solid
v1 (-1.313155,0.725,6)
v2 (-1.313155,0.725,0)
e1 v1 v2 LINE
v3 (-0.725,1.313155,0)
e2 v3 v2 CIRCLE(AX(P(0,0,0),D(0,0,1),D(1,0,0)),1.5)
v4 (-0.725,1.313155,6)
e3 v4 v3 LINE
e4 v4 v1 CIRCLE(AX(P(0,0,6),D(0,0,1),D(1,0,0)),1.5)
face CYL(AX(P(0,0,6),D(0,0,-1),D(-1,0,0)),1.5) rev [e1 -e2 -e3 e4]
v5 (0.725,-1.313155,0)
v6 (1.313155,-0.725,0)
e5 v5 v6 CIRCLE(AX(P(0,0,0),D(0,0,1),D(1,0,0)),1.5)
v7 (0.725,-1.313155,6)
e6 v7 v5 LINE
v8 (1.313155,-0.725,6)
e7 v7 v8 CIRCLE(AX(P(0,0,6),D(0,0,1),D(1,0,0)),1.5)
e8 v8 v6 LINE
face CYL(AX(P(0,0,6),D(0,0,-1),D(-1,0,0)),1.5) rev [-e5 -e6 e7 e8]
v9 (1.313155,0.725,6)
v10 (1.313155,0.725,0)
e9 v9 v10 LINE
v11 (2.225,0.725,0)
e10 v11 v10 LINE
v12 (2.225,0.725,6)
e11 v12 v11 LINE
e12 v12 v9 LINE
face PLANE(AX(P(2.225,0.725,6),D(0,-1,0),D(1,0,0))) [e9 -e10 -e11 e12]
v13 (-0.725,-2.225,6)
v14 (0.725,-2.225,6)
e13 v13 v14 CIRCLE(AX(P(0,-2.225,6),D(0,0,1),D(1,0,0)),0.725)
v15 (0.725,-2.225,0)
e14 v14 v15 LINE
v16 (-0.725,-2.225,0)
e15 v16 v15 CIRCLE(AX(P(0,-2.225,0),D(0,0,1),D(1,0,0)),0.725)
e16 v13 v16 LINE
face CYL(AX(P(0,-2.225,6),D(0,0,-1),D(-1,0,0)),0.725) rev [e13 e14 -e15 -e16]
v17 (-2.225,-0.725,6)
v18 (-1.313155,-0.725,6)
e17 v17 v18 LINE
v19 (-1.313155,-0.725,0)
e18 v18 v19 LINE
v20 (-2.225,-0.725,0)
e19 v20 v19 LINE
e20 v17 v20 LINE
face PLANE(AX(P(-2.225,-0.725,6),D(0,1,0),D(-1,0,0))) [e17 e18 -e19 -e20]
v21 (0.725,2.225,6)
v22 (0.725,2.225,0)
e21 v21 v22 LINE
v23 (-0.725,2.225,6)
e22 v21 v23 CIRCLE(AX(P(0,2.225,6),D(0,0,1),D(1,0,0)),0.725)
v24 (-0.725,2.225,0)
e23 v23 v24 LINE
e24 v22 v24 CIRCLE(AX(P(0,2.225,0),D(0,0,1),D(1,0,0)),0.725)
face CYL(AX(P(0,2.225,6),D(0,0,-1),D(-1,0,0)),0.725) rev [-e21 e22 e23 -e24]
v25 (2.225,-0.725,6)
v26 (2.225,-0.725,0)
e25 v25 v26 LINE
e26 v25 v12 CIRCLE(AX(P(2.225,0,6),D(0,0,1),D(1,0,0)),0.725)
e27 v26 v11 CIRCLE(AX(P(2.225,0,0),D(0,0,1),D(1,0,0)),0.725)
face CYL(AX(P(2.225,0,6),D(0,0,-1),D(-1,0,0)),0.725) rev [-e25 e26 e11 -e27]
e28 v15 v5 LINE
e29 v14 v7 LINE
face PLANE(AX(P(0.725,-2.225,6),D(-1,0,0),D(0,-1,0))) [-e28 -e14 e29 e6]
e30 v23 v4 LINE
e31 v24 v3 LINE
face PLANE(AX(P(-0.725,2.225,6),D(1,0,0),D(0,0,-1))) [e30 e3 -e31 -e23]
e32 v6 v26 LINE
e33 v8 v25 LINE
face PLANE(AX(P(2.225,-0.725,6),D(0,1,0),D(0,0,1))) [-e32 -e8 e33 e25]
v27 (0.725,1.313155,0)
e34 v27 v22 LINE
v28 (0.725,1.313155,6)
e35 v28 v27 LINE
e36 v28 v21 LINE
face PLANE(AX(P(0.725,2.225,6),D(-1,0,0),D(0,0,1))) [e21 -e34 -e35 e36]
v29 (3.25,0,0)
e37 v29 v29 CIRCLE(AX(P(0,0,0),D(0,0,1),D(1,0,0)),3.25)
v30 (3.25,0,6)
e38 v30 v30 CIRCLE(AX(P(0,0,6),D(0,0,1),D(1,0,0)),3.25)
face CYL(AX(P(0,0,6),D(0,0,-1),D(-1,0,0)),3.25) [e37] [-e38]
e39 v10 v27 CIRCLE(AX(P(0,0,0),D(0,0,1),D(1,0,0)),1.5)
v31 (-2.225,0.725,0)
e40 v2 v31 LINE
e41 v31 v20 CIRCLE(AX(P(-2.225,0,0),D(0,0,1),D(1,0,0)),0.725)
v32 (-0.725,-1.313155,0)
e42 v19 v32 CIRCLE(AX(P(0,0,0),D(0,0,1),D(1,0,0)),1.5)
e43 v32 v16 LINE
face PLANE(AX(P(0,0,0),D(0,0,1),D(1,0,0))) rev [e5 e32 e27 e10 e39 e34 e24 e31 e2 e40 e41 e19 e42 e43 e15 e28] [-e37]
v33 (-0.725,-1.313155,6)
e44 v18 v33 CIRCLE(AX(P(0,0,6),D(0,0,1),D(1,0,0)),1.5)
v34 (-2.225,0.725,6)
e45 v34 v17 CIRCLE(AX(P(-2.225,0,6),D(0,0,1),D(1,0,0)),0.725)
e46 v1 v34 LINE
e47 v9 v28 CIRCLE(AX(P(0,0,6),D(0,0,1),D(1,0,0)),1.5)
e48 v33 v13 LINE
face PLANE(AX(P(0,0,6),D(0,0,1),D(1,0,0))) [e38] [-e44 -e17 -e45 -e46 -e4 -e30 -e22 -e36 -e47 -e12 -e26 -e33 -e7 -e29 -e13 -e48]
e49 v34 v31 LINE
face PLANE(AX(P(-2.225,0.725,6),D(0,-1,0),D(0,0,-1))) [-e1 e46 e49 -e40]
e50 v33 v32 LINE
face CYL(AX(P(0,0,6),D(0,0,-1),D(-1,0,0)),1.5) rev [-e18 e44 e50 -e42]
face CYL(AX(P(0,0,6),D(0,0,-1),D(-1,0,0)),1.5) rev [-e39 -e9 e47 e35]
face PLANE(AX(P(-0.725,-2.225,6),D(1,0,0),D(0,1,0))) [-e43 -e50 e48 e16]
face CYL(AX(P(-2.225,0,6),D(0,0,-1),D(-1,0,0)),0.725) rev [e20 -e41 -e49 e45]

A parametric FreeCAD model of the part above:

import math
import FreeCAD as App
import Part
import Sketcher

V = App.Vector

doc = App.newDocument("Part")
body = doc.addObject("PartDesign::Body", "Body")

# Sketch on XY plane
sketch1 = doc.addObject("Sketcher::SketchObject", "Sketch")
body.addObject(sketch1)
sketch1.AttachmentSupport = (doc.XY_Plane, [""])
sketch1.MapMode = "FlatFace"
sketch1.addGeometry([
    Part.Circle(V(0, 0, 0), V(0, 0, 1), 3.2),  # 0
    Part.ArcOfCircle(Part.Circle(V(2.2, 0, 0), V(0, 0, 1), 0.7), math.radians(-90), math.radians(90)),  # 1
    Part.LineSegment(V(2.2, -0.7, 0), V(1.3, -0.7, 0)),  # 2
    Part.ArcOfCircle(Part.Circle(V(0, 0, 0), V(0, 0, 1), 1.5), math.radians(-61), math.radians(-29)),  # 3
    Part.LineSegment(V(0.7, -1.3, 0), V(0.7, -2.2, 0)),  # 4
    Part.ArcOfCircle(Part.Circle(V(0, -2.2, 0), V(0, 0, 1), 0.7), math.radians(180), math.radians(360)),  # 5
    Part.LineSegment(V(-0.7, -2.2, 0), V(-0.7, -1.3, 0)),  # 6
    Part.ArcOfCircle(Part.Circle(V(0, 0, 0), V(0, 0, 1), 1.5), math.radians(-151), math.radians(-119)),  # 7
    Part.LineSegment(V(-1.3, -0.7, 0), V(-2.2, -0.7, 0)),  # 8
    Part.ArcOfCircle(Part.Circle(V(-2.2, 0, 0), V(0, 0, 1), 0.7), math.radians(90), math.radians(270)),  # 9
    Part.LineSegment(V(-2.2, 0.7, 0), V(-1.3, 0.7, 0)),  # 10
    Part.ArcOfCircle(Part.Circle(V(0, 0, 0), V(0, 0, 1), 1.5), math.radians(119), math.radians(151)),  # 11
    Part.LineSegment(V(-0.7, 1.3, 0), V(-0.7, 2.2, 0)),  # 12
    Part.ArcOfCircle(Part.Circle(V(0, 2.2, 0), V(0, 0, 1), 0.7), math.radians(0), math.radians(180)),  # 13
    Part.LineSegment(V(0.7, 2.2, 0), V(0.7, 1.3, 0)),  # 14
    Part.ArcOfCircle(Part.Circle(V(0, 0, 0), V(0, 0, 1), 1.5), math.radians(29), math.radians(61)),  # 15
    Part.LineSegment(V(1.3, 0.7, 0), V(2.2, 0.7, 0)),  # 16
], False)
sketch1.addConstraint([
    Sketcher.Constraint("Tangent", 1, 1, 2, 1),
    Sketcher.Constraint("Coincident", 2, 2, 3, 2),
    Sketcher.Constraint("Coincident", 3, 1, 4, 1),
    Sketcher.Constraint("Tangent", 4, 2, 5, 2),
    Sketcher.Constraint("Tangent", 5, 1, 6, 1),
    Sketcher.Constraint("Coincident", 6, 2, 7, 2),
    Sketcher.Constraint("Coincident", 7, 1, 8, 1),
    Sketcher.Constraint("Tangent", 8, 2, 9, 2),
    Sketcher.Constraint("Tangent", 9, 1, 10, 1),
    Sketcher.Constraint("Coincident", 10, 2, 11, 2),
    Sketcher.Constraint("Coincident", 11, 1, 12, 1),
    Sketcher.Constraint("Tangent", 12, 2, 13, 2),
    Sketcher.Constraint("Tangent", 13, 1, 14, 1),
    Sketcher.Constraint("Coincident", 14, 2, 15, 2),
    Sketcher.Constraint("Coincident", 15, 1, 16, 1),
    Sketcher.Constraint("Tangent", 16, 2, 1, 2),
    Sketcher.Constraint("Horizontal", 2),
    Sketcher.Constraint("Vertical", 4),
    Sketcher.Constraint("Vertical", 6),
    Sketcher.Constraint("Horizontal", 8),
    Sketcher.Constraint("Horizontal", 10),
    Sketcher.Constraint("Vertical", 12),
    Sketcher.Constraint("Vertical", 14),
    Sketcher.Constraint("Horizontal", 16),
    Sketcher.Constraint("Coincident", 0, 3, -1, 1),
    Sketcher.Constraint("Coincident", 3, 3, -1, 1),
    Sketcher.Constraint("Coincident", 7, 3, -1, 1),
    Sketcher.Constraint("Coincident", 11, 3, -1, 1),
    Sketcher.Constraint("Coincident", 15, 3, -1, 1),
    Sketcher.Constraint("Equal", 1, 5),
    Sketcher.Constraint("Equal", 3, 7),
    Sketcher.Constraint("Equal", 5, 9),
    Sketcher.Constraint("Equal", 7, 11),
    Sketcher.Constraint("Equal", 9, 13),
    Sketcher.Constraint("Equal", 11, 15),
    Sketcher.Constraint("Symmetric", 1, 3, 9, 3, -1, 1),
    Sketcher.Constraint("Symmetric", 5, 3, 13, 3, -1, 1),
    Sketcher.Constraint("PointOnObject", 1, 3, -1),
    Sketcher.Constraint("PointOnObject", 5, 3, -2),
    Sketcher.Constraint("Equal", 16, 4),
    Sketcher.Constraint("Diameter", 0, 6.5),
    Sketcher.Constraint("Radius", 3, 1.5),
    Sketcher.Constraint("Radius", 1, 0.725),
    Sketcher.Constraint("DistanceY", 4, 2, 2, 2, 1.5),
])
pad1 = doc.addObject("PartDesign::Pad", "Pad")
body.addObject(pad1)
pad1.Profile = sketch1
pad1.Length = 6

doc.recompute()
